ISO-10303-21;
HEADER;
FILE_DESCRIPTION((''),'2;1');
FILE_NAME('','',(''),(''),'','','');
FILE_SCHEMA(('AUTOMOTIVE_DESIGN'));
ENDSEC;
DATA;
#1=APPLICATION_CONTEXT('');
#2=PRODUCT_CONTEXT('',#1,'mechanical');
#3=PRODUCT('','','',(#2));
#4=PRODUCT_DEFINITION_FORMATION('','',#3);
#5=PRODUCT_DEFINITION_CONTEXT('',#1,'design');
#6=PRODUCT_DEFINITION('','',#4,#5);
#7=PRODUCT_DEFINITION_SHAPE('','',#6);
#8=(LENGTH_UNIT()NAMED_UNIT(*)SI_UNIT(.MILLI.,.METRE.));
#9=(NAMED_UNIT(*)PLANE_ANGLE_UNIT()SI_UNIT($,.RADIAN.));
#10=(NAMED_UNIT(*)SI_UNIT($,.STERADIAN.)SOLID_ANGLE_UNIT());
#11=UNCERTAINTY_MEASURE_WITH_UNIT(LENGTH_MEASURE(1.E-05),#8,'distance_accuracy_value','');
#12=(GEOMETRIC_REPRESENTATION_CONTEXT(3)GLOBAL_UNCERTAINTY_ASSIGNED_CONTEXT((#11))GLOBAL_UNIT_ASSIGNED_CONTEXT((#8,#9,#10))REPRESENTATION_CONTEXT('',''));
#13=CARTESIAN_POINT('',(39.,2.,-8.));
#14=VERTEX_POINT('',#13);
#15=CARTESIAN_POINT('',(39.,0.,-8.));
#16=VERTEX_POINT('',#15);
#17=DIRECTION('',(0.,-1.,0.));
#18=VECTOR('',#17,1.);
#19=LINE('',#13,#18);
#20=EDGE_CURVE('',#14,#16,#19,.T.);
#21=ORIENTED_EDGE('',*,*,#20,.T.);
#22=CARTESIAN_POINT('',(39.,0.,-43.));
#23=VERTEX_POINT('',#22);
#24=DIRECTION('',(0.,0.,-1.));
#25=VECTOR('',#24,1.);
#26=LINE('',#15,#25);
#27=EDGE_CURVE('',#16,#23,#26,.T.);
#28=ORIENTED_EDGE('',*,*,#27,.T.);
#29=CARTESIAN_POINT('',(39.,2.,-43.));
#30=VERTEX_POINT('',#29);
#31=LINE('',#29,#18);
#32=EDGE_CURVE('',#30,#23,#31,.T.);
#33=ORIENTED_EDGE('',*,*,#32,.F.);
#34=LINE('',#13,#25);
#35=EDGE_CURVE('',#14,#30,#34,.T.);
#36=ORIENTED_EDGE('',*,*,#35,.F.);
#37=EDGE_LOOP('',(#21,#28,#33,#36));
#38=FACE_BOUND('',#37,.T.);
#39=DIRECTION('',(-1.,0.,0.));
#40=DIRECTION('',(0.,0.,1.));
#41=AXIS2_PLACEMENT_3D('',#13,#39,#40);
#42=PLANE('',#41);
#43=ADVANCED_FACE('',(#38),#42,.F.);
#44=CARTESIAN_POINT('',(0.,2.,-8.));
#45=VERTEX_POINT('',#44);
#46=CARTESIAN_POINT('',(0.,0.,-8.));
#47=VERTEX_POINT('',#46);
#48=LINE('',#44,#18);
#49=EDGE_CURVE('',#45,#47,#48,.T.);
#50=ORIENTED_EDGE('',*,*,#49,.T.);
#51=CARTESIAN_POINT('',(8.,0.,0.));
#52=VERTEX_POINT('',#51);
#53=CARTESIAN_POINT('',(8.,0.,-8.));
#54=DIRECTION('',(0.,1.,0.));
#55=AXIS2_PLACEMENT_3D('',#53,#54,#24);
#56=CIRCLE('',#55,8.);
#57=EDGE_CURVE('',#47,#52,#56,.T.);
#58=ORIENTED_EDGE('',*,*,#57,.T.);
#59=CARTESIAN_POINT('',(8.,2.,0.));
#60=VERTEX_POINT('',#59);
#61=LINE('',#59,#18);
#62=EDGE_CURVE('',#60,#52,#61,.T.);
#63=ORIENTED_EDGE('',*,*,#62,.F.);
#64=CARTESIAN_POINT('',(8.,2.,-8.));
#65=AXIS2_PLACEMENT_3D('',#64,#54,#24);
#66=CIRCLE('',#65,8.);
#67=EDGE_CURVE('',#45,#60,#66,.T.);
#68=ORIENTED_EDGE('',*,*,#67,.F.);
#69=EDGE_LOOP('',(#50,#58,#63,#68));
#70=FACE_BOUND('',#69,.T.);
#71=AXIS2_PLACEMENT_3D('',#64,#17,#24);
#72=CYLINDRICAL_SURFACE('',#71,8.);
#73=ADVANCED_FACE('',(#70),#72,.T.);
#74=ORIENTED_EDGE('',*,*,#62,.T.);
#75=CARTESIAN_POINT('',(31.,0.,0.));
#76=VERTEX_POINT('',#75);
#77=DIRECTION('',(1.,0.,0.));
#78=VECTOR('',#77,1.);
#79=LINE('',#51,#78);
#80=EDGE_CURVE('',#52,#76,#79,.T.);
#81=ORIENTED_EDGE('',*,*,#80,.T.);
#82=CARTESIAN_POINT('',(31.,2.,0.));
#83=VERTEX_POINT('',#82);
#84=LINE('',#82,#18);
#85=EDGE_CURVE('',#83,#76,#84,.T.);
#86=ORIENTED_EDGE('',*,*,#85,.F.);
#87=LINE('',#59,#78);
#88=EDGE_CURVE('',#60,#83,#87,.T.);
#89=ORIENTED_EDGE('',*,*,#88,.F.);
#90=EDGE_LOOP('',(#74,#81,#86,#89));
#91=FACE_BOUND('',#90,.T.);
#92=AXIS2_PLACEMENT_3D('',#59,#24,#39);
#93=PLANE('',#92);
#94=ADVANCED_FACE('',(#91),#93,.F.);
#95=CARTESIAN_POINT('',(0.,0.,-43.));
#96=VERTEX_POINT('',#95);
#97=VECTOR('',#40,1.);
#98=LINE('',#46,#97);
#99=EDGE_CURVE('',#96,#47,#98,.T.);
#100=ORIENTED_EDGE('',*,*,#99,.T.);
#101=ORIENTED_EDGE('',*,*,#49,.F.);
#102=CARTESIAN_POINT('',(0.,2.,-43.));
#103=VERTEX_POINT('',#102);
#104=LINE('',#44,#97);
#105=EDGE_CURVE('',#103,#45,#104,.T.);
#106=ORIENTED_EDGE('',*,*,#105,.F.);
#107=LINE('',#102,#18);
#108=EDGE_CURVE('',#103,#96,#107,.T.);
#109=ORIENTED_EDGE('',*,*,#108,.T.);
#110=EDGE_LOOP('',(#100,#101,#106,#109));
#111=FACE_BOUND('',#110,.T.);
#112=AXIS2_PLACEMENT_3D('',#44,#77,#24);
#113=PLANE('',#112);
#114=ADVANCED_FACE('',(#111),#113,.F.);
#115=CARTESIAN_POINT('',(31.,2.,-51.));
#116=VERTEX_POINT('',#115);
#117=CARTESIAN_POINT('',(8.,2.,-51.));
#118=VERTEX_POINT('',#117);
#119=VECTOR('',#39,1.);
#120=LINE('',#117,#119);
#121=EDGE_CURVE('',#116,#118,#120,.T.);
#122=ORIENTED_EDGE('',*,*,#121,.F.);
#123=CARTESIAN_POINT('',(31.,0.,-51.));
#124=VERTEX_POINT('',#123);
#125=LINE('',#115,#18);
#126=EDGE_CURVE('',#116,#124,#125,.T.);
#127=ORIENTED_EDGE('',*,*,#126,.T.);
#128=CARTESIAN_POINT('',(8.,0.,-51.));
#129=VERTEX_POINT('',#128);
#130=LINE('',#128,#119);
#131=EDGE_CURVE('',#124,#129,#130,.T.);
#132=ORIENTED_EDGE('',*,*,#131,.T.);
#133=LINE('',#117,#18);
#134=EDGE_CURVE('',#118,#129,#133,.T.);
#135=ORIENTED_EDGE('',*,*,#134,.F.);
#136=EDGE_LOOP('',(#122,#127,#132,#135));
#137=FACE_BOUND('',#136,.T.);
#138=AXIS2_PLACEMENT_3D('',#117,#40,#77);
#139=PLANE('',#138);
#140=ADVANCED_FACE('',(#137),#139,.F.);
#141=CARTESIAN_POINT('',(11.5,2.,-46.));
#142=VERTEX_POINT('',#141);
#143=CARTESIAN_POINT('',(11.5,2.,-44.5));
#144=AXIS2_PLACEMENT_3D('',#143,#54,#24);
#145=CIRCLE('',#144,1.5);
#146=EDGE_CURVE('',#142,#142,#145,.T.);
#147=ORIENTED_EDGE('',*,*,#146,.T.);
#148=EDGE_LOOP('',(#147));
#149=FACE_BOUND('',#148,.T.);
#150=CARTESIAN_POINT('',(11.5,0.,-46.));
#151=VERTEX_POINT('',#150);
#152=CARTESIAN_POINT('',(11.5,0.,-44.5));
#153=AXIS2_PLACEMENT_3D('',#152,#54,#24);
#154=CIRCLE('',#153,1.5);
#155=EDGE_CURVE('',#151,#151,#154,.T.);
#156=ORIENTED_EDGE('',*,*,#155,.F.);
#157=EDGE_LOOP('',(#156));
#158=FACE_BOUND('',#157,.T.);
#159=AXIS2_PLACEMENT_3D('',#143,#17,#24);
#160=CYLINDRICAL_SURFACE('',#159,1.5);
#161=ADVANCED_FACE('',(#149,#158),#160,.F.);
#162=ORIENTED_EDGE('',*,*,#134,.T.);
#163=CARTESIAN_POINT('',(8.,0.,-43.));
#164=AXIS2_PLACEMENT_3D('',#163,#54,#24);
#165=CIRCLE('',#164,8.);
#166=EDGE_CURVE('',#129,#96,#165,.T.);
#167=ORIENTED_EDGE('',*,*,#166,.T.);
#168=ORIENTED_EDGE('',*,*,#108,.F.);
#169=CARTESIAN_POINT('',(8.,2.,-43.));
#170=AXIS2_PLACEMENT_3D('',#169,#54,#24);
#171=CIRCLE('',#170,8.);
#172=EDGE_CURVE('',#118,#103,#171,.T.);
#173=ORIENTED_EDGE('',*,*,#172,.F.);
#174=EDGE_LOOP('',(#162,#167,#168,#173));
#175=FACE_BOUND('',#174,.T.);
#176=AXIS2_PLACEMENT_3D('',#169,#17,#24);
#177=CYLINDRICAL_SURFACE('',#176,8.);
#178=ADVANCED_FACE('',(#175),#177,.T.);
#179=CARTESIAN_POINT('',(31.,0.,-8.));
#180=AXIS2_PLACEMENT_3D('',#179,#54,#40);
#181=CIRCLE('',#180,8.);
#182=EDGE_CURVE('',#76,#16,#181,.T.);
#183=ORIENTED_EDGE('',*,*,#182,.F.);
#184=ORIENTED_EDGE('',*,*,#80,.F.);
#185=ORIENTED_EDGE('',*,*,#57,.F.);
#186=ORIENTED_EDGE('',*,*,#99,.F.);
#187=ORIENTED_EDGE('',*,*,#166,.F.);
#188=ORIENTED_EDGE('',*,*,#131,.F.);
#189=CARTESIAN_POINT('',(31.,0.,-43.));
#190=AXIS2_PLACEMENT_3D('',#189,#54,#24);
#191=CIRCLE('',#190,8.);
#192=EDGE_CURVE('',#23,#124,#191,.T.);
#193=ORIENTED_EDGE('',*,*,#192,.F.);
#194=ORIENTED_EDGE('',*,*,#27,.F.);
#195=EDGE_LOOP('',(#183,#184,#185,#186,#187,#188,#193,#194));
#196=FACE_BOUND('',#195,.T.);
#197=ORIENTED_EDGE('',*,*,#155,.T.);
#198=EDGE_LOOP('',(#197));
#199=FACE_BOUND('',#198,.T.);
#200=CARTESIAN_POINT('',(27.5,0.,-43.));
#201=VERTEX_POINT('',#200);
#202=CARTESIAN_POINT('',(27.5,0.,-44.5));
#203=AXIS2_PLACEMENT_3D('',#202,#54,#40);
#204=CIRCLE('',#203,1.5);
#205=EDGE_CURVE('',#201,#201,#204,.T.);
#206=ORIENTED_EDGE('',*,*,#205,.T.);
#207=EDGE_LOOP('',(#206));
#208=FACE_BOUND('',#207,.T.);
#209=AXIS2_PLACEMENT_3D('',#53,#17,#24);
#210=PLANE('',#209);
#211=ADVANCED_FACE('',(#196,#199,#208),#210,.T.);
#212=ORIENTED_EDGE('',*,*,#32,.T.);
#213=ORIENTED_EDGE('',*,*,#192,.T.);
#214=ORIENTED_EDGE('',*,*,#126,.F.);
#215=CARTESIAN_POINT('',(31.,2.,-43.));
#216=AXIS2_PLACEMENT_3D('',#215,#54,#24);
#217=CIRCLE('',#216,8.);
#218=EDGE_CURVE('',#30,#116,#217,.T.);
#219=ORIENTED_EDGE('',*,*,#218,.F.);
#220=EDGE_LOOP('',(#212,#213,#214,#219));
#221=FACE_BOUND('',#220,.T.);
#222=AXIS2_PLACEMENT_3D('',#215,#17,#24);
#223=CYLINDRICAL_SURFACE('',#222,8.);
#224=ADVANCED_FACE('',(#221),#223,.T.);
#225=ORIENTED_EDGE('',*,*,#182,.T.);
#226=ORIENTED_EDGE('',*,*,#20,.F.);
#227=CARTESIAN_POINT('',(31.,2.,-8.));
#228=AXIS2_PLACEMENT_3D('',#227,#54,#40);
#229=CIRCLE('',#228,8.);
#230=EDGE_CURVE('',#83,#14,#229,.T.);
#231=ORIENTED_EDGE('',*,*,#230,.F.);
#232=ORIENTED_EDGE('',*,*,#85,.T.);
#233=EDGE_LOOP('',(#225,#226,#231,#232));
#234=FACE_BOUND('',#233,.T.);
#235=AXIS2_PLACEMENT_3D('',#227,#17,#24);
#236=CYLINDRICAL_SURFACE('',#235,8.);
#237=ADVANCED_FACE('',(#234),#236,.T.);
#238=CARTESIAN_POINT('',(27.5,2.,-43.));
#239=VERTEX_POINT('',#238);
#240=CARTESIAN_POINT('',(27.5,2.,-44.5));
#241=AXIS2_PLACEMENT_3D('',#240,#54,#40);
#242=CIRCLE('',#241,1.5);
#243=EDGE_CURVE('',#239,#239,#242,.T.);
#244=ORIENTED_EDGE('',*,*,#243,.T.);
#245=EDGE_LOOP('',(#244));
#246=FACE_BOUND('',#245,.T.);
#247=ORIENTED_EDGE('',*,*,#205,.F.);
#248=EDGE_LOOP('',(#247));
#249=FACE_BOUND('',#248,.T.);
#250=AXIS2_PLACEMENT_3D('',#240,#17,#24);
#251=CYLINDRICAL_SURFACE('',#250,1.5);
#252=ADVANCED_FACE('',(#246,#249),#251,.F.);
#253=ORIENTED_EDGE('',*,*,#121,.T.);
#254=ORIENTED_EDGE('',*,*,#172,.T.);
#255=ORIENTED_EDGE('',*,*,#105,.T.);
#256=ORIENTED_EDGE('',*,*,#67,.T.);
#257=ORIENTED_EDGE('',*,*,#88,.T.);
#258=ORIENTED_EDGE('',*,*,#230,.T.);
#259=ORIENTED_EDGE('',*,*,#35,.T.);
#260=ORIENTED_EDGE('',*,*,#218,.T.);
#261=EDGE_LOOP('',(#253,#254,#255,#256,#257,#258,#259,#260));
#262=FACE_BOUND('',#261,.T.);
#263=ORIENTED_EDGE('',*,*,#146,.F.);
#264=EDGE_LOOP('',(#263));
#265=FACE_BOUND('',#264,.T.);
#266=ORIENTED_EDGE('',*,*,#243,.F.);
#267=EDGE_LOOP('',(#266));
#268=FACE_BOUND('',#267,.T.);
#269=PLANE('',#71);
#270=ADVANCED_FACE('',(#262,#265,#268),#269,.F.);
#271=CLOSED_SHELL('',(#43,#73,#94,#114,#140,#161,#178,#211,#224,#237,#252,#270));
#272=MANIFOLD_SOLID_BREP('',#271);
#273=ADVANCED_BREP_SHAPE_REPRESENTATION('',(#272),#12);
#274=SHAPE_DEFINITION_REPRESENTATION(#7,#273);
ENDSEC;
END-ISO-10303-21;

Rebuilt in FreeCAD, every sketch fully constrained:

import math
import FreeCAD as App
import Part
import Sketcher

doc = App.newDocument("Part")
body = doc.addObject("PartDesign::Body", "Body")

# Sketch on XZ plane
sketch1 = body.newObject("Sketcher::SketchObject", "Sketch")
sketch1.AttachmentSupport = (doc.getObject("XZ_Plane"), [""])
sketch1.MapMode = "FlatFace"
sketch1.addGeometry(Part.LineSegment(App.Vector(8, 0, 0), App.Vector(31, 0, 0)), False)
sketch1.addGeometry(Part.ArcOfCircle(Part.Circle(App.Vector(31, -8, 0), App.Vector(0, 0, 1), 8), math.radians(0), math.radians(90)), False)
sketch1.addGeometry(Part.LineSegment(App.Vector(39, -8, 0), App.Vector(39, -43, 0)), False)
sketch1.addGeometry(Part.ArcOfCircle(Part.Circle(App.Vector(31, -43, 0), App.Vector(0, 0, 1), 8), math.radians(-90), math.radians(0)), False)
sketch1.addGeometry(Part.LineSegment(App.Vector(31, -51, 0), App.Vector(8, -51, 0)), False)
sketch1.addGeometry(Part.ArcOfCircle(Part.Circle(App.Vector(8, -43, 0), App.Vector(0, 0, 1), 8), math.radians(-180), math.radians(-90)), False)
sketch1.addGeometry(Part.LineSegment(App.Vector(0, -43, 0), App.Vector(0, -8, 0)), False)
sketch1.addGeometry(Part.ArcOfCircle(Part.Circle(App.Vector(8, -8, 0), App.Vector(0, 0, 1), 8), math.radians(90), math.radians(180)), False)
sketch1.addGeometry(Part.Circle(App.Vector(11.5, -44.5, 0), App.Vector(0, 0, 1), 1.5), False)
sketch1.addGeometry(Part.Circle(App.Vector(27.5, -44.5, 0), App.Vector(0, 0, 1), 1.5), False)
sketch1.addConstraint(Sketcher.Constraint("Tangent", 0, 2, 1, 2))
sketch1.addConstraint(Sketcher.Constraint("Tangent", 1, 1, 2, 1))
sketch1.addConstraint(Sketcher.Constraint("Tangent", 2, 2, 3, 2))
sketch1.addConstraint(Sketcher.Constraint("Tangent", 3, 1, 4, 1))
sketch1.addConstraint(Sketcher.Constraint("Tangent", 4, 2, 5, 2))
sketch1.addConstraint(Sketcher.Constraint("Tangent", 5, 1, 6, 1))
sketch1.addConstraint(Sketcher.Constraint("Tangent", 6, 2, 7, 2))
sketch1.addConstraint(Sketcher.Constraint("Tangent", 7, 1, 0, 1))
sketch1.addConstraint(Sketcher.Constraint("Horizontal", 0))
sketch1.addConstraint(Sketcher.Constraint("Vertical", 2))
sketch1.addConstraint(Sketcher.Constraint("Horizontal", 4))
sketch1.addConstraint(Sketcher.Constraint("Vertical", 6))
sketch1.addConstraint(Sketcher.Constraint("Equal", 1, 3))
sketch1.addConstraint(Sketcher.Constraint("Equal", 3, 5))
sketch1.addConstraint(Sketcher.Constraint("Equal", 5, 7))
sketch1.addConstraint(Sketcher.Constraint("Equal", 8, 9))
sketch1.addConstraint(Sketcher.Constraint("PointOnObject", 0, 2, -1))
sketch1.addConstraint(Sketcher.Constraint("PointOnObject", 5, 1, -2))
sketch1.addConstraint(Sketcher.Constraint("Horizontal", 8, 3, 9, 3))
sketch1.addConstraint(Sketcher.Constraint("Diameter", 8, 3.0))
sketch1.addConstraint(Sketcher.Constraint("Radius", 1, 8.0))
sketch1.addConstraint(Sketcher.Constraint("DistanceX", 0, 1, 0, 2, 23.0))
sketch1.addConstraint(Sketcher.Constraint("DistanceY", 2, 2, 2, 1, 35.0))
sketch1.addConstraint(Sketcher.Constraint("DistanceX", 8, 3, 9, 3, 16.0))
sketch1.addConstraint(Sketcher.Constraint("DistanceX", -1, 1, 8, 3, 11.5))
sketch1.addConstraint(Sketcher.Constraint("DistanceY", 8, 3, -1, 1, 44.5))
pad1 = body.newObject("PartDesign::Pad", "Pad")
pad1.Profile = sketch1
pad1.Length = 2
pad1.Reversed = True

doc.recompute()
